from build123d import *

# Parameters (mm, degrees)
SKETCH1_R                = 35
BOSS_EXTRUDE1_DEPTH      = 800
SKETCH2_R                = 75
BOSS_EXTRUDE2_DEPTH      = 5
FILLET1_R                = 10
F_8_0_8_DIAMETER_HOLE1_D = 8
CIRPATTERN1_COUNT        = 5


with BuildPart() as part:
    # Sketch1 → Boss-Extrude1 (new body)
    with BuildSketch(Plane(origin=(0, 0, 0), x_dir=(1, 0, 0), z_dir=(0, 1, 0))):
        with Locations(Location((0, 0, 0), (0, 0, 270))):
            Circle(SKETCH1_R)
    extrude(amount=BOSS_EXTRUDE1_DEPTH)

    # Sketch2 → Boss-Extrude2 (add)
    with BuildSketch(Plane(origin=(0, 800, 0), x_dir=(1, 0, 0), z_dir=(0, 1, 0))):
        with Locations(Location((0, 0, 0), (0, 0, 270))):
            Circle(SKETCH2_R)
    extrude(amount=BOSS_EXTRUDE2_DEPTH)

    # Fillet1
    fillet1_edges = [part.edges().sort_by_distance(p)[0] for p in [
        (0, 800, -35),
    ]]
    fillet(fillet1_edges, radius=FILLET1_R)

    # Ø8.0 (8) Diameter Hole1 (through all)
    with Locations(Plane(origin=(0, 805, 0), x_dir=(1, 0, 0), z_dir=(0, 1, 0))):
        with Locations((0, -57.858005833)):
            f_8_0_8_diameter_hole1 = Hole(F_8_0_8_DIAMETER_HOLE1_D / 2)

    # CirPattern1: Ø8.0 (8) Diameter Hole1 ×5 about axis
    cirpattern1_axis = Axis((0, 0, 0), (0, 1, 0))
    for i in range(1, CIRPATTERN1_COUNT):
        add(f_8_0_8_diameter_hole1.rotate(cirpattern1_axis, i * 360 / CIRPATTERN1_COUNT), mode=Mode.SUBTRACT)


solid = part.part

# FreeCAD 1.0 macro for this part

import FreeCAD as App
import Part
import Sketcher
Q = App.Units.Quantity


def edges_at(feature, points):
    """Names of the edges that pass closest to the given points."""
    edges = feature.Shape.Edges
    near = lambda p: min(range(len(edges)), key=lambda i: edges[i].distToShape(Part.Vertex(*p))[0])
    return sorted({f"Edge{near(p) + 1}" for p in points})

doc = App.newDocument("Part")
body = doc.addObject("PartDesign::Body", "Body")

sketch1 = body.newObject("Sketcher::SketchObject", "Sketch")
sketch1.AttachmentSupport = (doc.getObject("XZ_Plane"), [""])
sketch1.MapMode = "FlatFace"
sketch1.addGeometry(Part.Circle(App.Vector(0, 0, 0), App.Vector(0, 0, 1), 35), False)
sketch1.addConstraint(Sketcher.Constraint("Coincident", 0, 3, -1, 1))
sketch1.addConstraint(Sketcher.Constraint("Diameter", 0, Q("70 mm")))
pad1 = body.newObject("PartDesign::Pad", "Pad")
pad1.Profile = sketch1
pad1.Length = 800
pad1.Reversed = True

sketch2 = body.newObject("Sketcher::SketchObject", "Sketch001")
sketch2.AttachmentSupport = (doc.getObject("XZ_Plane"), [""])
sketch2.MapMode = "FlatFace"
sketch2.AttachmentOffset = App.Placement(App.Vector(0, 0, -800), App.Rotation())
sketch2.addGeometry(Part.Circle(App.Vector(0, 0, 0), App.Vector(0, 0, 1), 75), False)
sketch2.addConstraint(Sketcher.Constraint("Coincident", 0, 3, -1, 1))
sketch2.addConstraint(Sketcher.Constraint("Diameter", 0, Q("150 mm")))
pad2 = body.newObject("PartDesign::Pad", "Pad001")
pad2.Profile = sketch2
pad2.Length = 5
pad2.Reversed = True
doc.recompute()

fillet = body.newObject("PartDesign::Fillet", "Fillet")
fillet.Base = (pad2, edges_at(pad2, [(0, 800, -35)]))
fillet.Radius = 10

sketch3 = body.newObject("Sketcher::SketchObject", "Sketch002")
sketch3.AttachmentSupport = (doc.getObject("XZ_Plane"), [""])
sketch3.MapMode = "FlatFace"
sketch3.AttachmentOffset = App.Placement(App.Vector(0, 0, -805), App.Rotation())
sketch3.addGeometry(Part.Circle(App.Vector(0, 57.9, 0), App.Vector(0, 0, 1), 4), False)
sketch3.addConstraint(Sketcher.Constraint("PointOnObject", 0, 3, -2))
sketch3.addConstraint(Sketcher.Constraint("Diameter", 0, Q("8 mm")))
sketch3.addConstraint(Sketcher.Constraint("DistanceY", -1, 1, 0, 3, Q("57.858006 mm")))
doc.recompute()
hole = body.newObject("PartDesign::Hole", "Hole")
hole.Profile = sketch3
hole.ThreadType = "None"
hole.Diameter = 8
hole.DepthType = "ThroughAll"
hole.Reversed = True
doc.recompute()

polarpattern = body.newObject("PartDesign::PolarPattern", "PolarPattern")
polarpattern.Originals = [hole]
polarpattern.Axis = (doc.getObject("Y_Axis"), [""])
polarpattern.Angle = 360
polarpattern.Occurrences = 5
body.Tip = polarpattern

doc.recompute()
